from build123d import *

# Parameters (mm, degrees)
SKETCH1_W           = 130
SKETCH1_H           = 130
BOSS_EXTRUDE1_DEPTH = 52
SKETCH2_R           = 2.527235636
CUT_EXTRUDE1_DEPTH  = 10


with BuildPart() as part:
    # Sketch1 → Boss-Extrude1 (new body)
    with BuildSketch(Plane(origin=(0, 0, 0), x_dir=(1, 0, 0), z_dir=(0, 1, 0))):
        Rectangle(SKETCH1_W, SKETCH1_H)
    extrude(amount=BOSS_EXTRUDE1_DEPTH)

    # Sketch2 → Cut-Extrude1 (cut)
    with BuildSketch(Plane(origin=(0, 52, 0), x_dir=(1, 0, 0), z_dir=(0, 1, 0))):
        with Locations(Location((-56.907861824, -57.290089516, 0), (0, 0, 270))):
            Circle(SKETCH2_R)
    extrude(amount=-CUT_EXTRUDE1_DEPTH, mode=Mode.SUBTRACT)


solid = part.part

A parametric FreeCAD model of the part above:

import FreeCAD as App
import Part
import Sketcher


def add_polygon(sketch, points):
    """Adds a closed chain of lines whose ends are joined by coincident constraints."""
    first, n = sketch.GeometryCount, len(points)
    for a, b in zip(points, points[1:] + points[:1]):
        sketch.addGeometry(Part.LineSegment(App.Vector(*a, 0), App.Vector(*b, 0)), False)
    for i in range(n):
        sketch.addConstraint(Sketcher.Constraint("Coincident", first + i, 2, first + (i + 1) % n, 1))

doc = App.newDocument("Part")
body = doc.addObject("PartDesign::Body", "Body")

sketch1 = body.newObject("Sketcher::SketchObject", "Sketch")
sketch1.AttachmentSupport = (doc.getObject("XZ_Plane"), [""])
sketch1.MapMode = "FlatFace"
add_polygon(sketch1, [(-65, -65), (-65, 65), (65, 65), (65, -65)])
sketch1.addConstraint([
    Sketcher.Constraint("Vertical", 0),
    Sketcher.Constraint("Horizontal", 1),
    Sketcher.Constraint("Vertical", 2),
    Sketcher.Constraint("Horizontal", 3),
    Sketcher.Constraint("Symmetric", 0, 2, 2, 2, -1, 1),
    Sketcher.Constraint("Equal", 3, 0),
    Sketcher.Constraint("DistanceX", 1, 1, 1, 2, 130.0),
])
pad1 = body.newObject("PartDesign::Pad", "Pad")
pad1.Profile = sketch1
pad1.Length = 52
pad1.Reversed = True

sketch2 = body.newObject("Sketcher::SketchObject", "Sketch001")
sketch2.AttachmentSupport = (doc.getObject("XZ_Plane"), [""])
sketch2.MapMode = "FlatFace"
sketch2.AttachmentOffset = App.Placement(App.Vector(0, 0, -52), App.Rotation())
sketch2.addGeometry(Part.Circle(App.Vector(-56.907862, 57.29009, 0), App.Vector(0, 0, 1), 2.527236), False)
sketch2.addConstraint([
    Sketcher.Constraint("Diameter", 0, 5.054471),
    Sketcher.Constraint("DistanceX", 0, 3, -1, 1, 56.907862),
    Sketcher.Constraint("DistanceY", -1, 1, 0, 3, 57.29009),
])
pocket1 = body.newObject("PartDesign::Pocket", "Pocket")
pocket1.Profile = sketch2
pocket1.Length = 10
pocket1.Reversed = True

doc.recompute()
